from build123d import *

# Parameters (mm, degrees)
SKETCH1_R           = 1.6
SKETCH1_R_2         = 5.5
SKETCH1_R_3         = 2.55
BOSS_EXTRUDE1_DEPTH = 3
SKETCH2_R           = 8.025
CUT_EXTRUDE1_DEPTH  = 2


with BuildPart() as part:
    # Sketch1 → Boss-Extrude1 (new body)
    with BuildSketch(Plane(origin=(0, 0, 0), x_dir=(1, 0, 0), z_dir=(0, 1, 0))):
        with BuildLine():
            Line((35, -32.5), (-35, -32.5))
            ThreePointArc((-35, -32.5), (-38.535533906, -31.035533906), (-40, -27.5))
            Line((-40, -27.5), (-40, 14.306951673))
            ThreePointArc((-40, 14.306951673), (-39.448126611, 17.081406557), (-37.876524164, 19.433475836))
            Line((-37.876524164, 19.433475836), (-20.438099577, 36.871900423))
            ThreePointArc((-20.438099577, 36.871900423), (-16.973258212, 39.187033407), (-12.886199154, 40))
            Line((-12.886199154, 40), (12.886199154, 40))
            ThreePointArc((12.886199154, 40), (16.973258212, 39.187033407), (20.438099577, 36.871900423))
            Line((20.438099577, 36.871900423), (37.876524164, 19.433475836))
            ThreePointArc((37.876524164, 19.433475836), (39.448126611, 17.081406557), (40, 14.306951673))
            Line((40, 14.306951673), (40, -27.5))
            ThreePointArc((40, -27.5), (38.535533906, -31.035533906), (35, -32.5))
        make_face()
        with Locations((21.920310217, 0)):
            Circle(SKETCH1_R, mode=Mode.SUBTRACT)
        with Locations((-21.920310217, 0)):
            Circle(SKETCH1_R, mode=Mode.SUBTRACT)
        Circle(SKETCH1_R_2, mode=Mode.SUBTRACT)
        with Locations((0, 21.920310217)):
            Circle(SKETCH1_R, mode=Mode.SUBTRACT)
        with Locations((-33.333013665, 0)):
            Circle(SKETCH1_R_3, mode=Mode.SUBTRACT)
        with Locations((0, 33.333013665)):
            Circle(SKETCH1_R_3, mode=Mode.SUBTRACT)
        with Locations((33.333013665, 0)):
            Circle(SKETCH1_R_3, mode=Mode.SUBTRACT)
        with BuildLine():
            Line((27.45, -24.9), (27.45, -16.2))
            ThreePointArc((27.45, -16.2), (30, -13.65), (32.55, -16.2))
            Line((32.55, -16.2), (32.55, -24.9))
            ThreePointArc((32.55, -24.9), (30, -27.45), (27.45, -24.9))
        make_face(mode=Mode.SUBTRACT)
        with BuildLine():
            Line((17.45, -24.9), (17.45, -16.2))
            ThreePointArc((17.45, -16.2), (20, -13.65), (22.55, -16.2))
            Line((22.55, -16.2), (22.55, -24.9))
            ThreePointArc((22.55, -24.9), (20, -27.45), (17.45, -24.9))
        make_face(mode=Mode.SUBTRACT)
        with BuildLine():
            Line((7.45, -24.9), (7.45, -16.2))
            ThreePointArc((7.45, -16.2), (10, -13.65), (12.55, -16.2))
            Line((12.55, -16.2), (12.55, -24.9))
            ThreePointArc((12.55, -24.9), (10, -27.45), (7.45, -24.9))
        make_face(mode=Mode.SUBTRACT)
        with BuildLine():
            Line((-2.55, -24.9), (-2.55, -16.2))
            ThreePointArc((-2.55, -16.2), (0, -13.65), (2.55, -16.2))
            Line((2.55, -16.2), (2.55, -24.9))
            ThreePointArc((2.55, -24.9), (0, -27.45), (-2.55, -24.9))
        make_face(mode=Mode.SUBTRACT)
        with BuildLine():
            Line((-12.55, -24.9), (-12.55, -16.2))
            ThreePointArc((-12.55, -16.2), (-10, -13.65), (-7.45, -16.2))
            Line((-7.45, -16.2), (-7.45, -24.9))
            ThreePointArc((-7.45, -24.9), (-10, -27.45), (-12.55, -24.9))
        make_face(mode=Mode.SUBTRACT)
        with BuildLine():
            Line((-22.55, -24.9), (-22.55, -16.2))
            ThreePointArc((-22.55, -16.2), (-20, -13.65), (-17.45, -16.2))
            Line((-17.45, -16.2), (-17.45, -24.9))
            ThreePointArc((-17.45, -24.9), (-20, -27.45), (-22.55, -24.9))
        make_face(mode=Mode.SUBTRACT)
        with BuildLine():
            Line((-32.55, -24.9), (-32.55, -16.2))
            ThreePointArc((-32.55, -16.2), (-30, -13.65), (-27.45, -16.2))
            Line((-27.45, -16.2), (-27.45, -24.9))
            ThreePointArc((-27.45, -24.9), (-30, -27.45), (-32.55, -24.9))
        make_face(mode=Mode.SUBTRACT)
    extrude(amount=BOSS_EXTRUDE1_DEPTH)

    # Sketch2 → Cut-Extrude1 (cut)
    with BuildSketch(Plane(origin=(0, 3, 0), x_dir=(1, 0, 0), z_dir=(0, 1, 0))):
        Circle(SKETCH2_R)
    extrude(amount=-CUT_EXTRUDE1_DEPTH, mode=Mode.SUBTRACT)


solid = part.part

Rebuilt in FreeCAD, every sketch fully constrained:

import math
import FreeCAD as App
import Part
import Sketcher
Q = App.Units.Quantity

doc = App.newDocument("Part")
params = doc.addObject("Spreadsheet::Sheet", "Params")
for row, (alias, value) in enumerate([
    ("sketch1_diameter", "11 mm"),
    ("sketch1_radius", "5 mm"),
    ("sketch1_diameter2", "5.1 mm"),
    ("sketch1_diameter3", "3.2 mm"),
    ("sketch1_width", "70 mm"),
    ("pad1_length", "3 mm"),
    ("sketch2_diameter", "16.05 mm"),
    ("pocket1_length", "2 mm"),
], start=1):
    params.set(f"A{row}", alias)
    params.set(f"B{row}", "=" + value)
    params.setAlias(f"B{row}", alias)

body = doc.addObject("PartDesign::Body", "Body")

# Sketch on XZ plane
sketch1 = body.newObject("Sketcher::SketchObject", "Sketch")
sketch1.AttachmentSupport = (doc.getObject("XZ_Plane"), [""])
sketch1.MapMode = "FlatFace"
sketch1.addGeometry([
    Part.LineSegment(App.Vector(-35, 32.5, 0), App.Vector(35, 32.5, 0)),  # 0
    Part.ArcOfCircle(Part.Circle(App.Vector(35, 27.5, 0), App.Vector(0, 0, 1), 5), math.radians(0), math.radians(90)),  # 1
    Part.LineSegment(App.Vector(40, 27.5, 0), App.Vector(40, -14.3, 0)),  # 2
    Part.ArcOfCircle(Part.Circle(App.Vector(32.8, -14.3, 0), App.Vector(0, 0, 1), 7.2), math.radians(-45), math.radians(0)),  # 3
    Part.LineSegment(App.Vector(37.9, -19.4, 0), App.Vector(20.4, -36.9, 0)),  # 4
    Part.ArcOfCircle(Part.Circle(App.Vector(12.9, -29.3, 0), App.Vector(0, 0, 1), 10.7), math.radians(-90), math.radians(-45)),  # 5
    Part.LineSegment(App.Vector(12.9, -40, 0), App.Vector(-12.9, -40, 0)),  # 6
    Part.ArcOfCircle(Part.Circle(App.Vector(-12.9, -29.3, 0), App.Vector(0, 0, 1), 10.7), math.radians(-135), math.radians(-90)),  # 7
    Part.LineSegment(App.Vector(-20.4, -36.9, 0), App.Vector(-37.9, -19.4, 0)),  # 8
    Part.ArcOfCircle(Part.Circle(App.Vector(-32.8, -14.3, 0), App.Vector(0, 0, 1), 7.2), math.radians(180), math.radians(225)),  # 9
    Part.LineSegment(App.Vector(-40, -14.3, 0), App.Vector(-40, 27.5, 0)),  # 10
    Part.ArcOfCircle(Part.Circle(App.Vector(-35, 27.5, 0), App.Vector(0, 0, 1), 5), math.radians(90), math.radians(180)),  # 11
    Part.LineSegment(App.Vector(27.4, 24.9, 0), App.Vector(27.4, 16.2, 0)),  # 12
    Part.ArcOfCircle(Part.Circle(App.Vector(30, 16.2, 0), App.Vector(0, 0, 1), 2.5), math.radians(180), math.radians(360)),  # 13
    Part.LineSegment(App.Vector(32.5, 16.2, 0), App.Vector(32.5, 24.9, 0)),  # 14
    Part.ArcOfCircle(Part.Circle(App.Vector(30, 24.9, 0), App.Vector(0, 0, 1), 2.5), math.radians(0), math.radians(180)),  # 15
    Part.LineSegment(App.Vector(17.4, 24.9, 0), App.Vector(17.4, 16.2, 0)),  # 16
    Part.ArcOfCircle(Part.Circle(App.Vector(20, 16.2, 0), App.Vector(0, 0, 1), 2.5), math.radians(180), math.radians(360)),  # 17
    Part.LineSegment(App.Vector(22.6, 16.2, 0), App.Vector(22.6, 24.9, 0)),  # 18
    Part.ArcOfCircle(Part.Circle(App.Vector(20, 24.9, 0), App.Vector(0, 0, 1), 2.5), math.radians(0), math.radians(180)),  # 19
    Part.LineSegment(App.Vector(7.5, 24.9, 0), App.Vector(7.5, 16.2, 0)),  # 20
    Part.ArcOfCircle(Part.Circle(App.Vector(10, 16.2, 0), App.Vector(0, 0, 1), 2.5), math.radians(180), math.radians(360)),  # 21
    Part.LineSegment(App.Vector(12.6, 16.2, 0), App.Vector(12.6, 24.9, 0)),  # 22
    Part.ArcOfCircle(Part.Circle(App.Vector(10, 24.9, 0), App.Vector(0, 0, 1), 2.5), math.radians(0), math.radians(180)),  # 23
    Part.LineSegment(App.Vector(-2.5, 24.9, 0), App.Vector(-2.5, 16.2, 0)),  # 24
    Part.ArcOfCircle(Part.Circle(App.Vector(0, 16.2, 0), App.Vector(0, 0, 1), 2.5), math.radians(180), math.radians(360)),  # 25
    Part.LineSegment(App.Vector(2.5, 16.2, 0), App.Vector(2.5, 24.9, 0)),  # 26
    Part.ArcOfCircle(Part.Circle(App.Vector(0, 24.9, 0), App.Vector(0, 0, 1), 2.5), math.radians(0), math.radians(180)),  # 27
    Part.Circle(App.Vector(33.3, 0, 0), App.Vector(0, 0, 1), 2.5),  # 28
    Part.Circle(App.Vector(21.9, 0, 0), App.Vector(0, 0, 1), 1.6),  # 29
    Part.Circle(App.Vector(0, 0, 0), App.Vector(0, 0, 1), 5.5),  # 30
    Part.LineSegment(App.Vector(-12.6, 24.9, 0), App.Vector(-12.6, 16.2, 0)),  # 31
    Part.ArcOfCircle(Part.Circle(App.Vector(-10, 16.2, 0), App.Vector(0, 0, 1), 2.5), math.radians(180), math.radians(360)),  # 32
    Part.LineSegment(App.Vector(-7.5, 16.2, 0), App.Vector(-7.5, 24.9, 0)),  # 33
    Part.ArcOfCircle(Part.Circle(App.Vector(-10, 24.9, 0), App.Vector(0, 0, 1), 2.5), math.radians(0), math.radians(180)),  # 34
    Part.LineSegment(App.Vector(-22.6, 24.9, 0), App.Vector(-22.6, 16.2, 0)),  # 35
    Part.ArcOfCircle(Part.Circle(App.Vector(-20, 16.2, 0), App.Vector(0, 0, 1), 2.5), math.radians(180), math.radians(360)),  # 36
    Part.LineSegment(App.Vector(-17.4, 16.2, 0), App.Vector(-17.4, 24.9, 0)),  # 37
    Part.ArcOfCircle(Part.Circle(App.Vector(-20, 24.9, 0), App.Vector(0, 0, 1), 2.5), math.radians(0), math.radians(180)),  # 38
    Part.LineSegment(App.Vector(-32.5, 24.9, 0), App.Vector(-32.5, 16.2, 0)),  # 39
    Part.ArcOfCircle(Part.Circle(App.Vector(-30, 16.2, 0), App.Vector(0, 0, 1), 2.5), math.radians(180), math.radians(360)),  # 40
    Part.LineSegment(App.Vector(-27.4, 16.2, 0), App.Vector(-27.4, 24.9, 0)),  # 41
    Part.ArcOfCircle(Part.Circle(App.Vector(-30, 24.9, 0), App.Vector(0, 0, 1), 2.5), math.radians(0), math.radians(180)),  # 42
    Part.Circle(App.Vector(-21.9, 0, 0), App.Vector(0, 0, 1), 1.6),  # 43
    Part.Circle(App.Vector(-33.3, 0, 0), App.Vector(0, 0, 1), 2.5),  # 44
    Part.Circle(App.Vector(0, -21.9, 0), App.Vector(0, 0, 1), 1.6),  # 45
    Part.Circle(App.Vector(0, -33.3, 0), App.Vector(0, 0, 1), 2.5),  # 46
], False)
sketch1.addConstraint([
    Sketcher.Constraint("Tangent", 0, 2, 1, 2),
    Sketcher.Constraint("Tangent", 1, 1, 2, 1),
    Sketcher.Constraint("Tangent", 2, 2, 3, 2),
    Sketcher.Constraint("Tangent", 3, 1, 4, 1),
    Sketcher.Constraint("Tangent", 4, 2, 5, 2),
    Sketcher.Constraint("Tangent", 5, 1, 6, 1),
    Sketcher.Constraint("Tangent", 6, 2, 7, 2),
    Sketcher.Constraint("Tangent", 7, 1, 8, 1),
    Sketcher.Constraint("Tangent", 8, 2, 9, 2),
    Sketcher.Constraint("Tangent", 9, 1, 10, 1),
    Sketcher.Constraint("Tangent", 10, 2, 11, 2),
    Sketcher.Constraint("Tangent", 11, 1, 0, 1),
    Sketcher.Constraint("Tangent", 12, 2, 13, 1),
    Sketcher.Constraint("Tangent", 13, 2, 14, 1),
    Sketcher.Constraint("Tangent", 14, 2, 15, 1),
    Sketcher.Constraint("Tangent", 15, 2, 12, 1),
    Sketcher.Constraint("Tangent", 16, 2, 17, 1),
    Sketcher.Constraint("Tangent", 17, 2, 18, 1),
    Sketcher.Constraint("Tangent", 18, 2, 19, 1),
    Sketcher.Constraint("Tangent", 19, 2, 16, 1),
    Sketcher.Constraint("Tangent", 20, 2, 21, 1),
    Sketcher.Constraint("Tangent", 21, 2, 22, 1),
    Sketcher.Constraint("Tangent", 22, 2, 23, 1),
    Sketcher.Constraint("Tangent", 23, 2, 20, 1),
    Sketcher.Constraint("Tangent", 24, 2, 25, 1),
    Sketcher.Constraint("Tangent", 25, 2, 26, 1),
    Sketcher.Constraint("Tangent", 26, 2, 27, 1),
    Sketcher.Constraint("Tangent", 27, 2, 24, 1),
    Sketcher.Constraint("Tangent", 31, 2, 32, 1),
    Sketcher.Constraint("Tangent", 32, 2, 33, 1),
    Sketcher.Constraint("Tangent", 33, 2, 34, 1),
    Sketcher.Constraint("Tangent", 34, 2, 31, 1),
    Sketcher.Constraint("Tangent", 35, 2, 36, 1),
    Sketcher.Constraint("Tangent", 36, 2, 37, 1),
    Sketcher.Constraint("Tangent", 37, 2, 38, 1),
    Sketcher.Constraint("Tangent", 38, 2, 35, 1),
    Sketcher.Constraint("Tangent", 39, 2, 40, 1),
    Sketcher.Constraint("Tangent", 40, 2, 41, 1),
    Sketcher.Constraint("Tangent", 41, 2, 42, 1),
    Sketcher.Constraint("Tangent", 42, 2, 39, 1),
    Sketcher.Constraint("Horizontal", 0),
    Sketcher.Constraint("Vertical", 2),
    Sketcher.Constraint("Horizontal", 6),
    Sketcher.Constraint("Vertical", 10),
    Sketcher.Constraint("Vertical", 12),
    Sketcher.Constraint("Vertical", 14),
    Sketcher.Constraint("Vertical", 16),
    Sketcher.Constraint("Vertical", 18),
    Sketcher.Constraint("Vertical", 20),
    Sketcher.Constraint("Vertical", 22),
    Sketcher.Constraint("Vertical", 24),
    Sketcher.Constraint("Vertical", 26),
    Sketcher.Constraint("Vertical", 31),
    Sketcher.Constraint("Vertical", 33),
    Sketcher.Constraint("Vertical", 35),
    Sketcher.Constraint("Vertical", 37),
    Sketcher.Constraint("Vertical", 39),
    Sketcher.Constraint("Vertical", 41),
    Sketcher.Constraint("Coincident", 30, 3, -1, 1),
    Sketcher.Constraint("Equal", 5, 7),
    Sketcher.Constraint("Equal", 3, 9),
    Sketcher.Constraint("Equal", 1, 11),
    Sketcher.Constraint("Equal", 15, 17),
    Sketcher.Constraint("Equal", 19, 21),
    Sketcher.Constraint("Equal", 23, 25),
    Sketcher.Constraint("Equal", 27, 28),
    Sketcher.Constraint("Equal", 28, 32),
    Sketcher.Constraint("Equal", 34, 36),
    Sketcher.Constraint("Equal", 38, 40),
    Sketcher.Constraint("Equal", 29, 43),
    Sketcher.Constraint("Equal", 42, 44),
    Sketcher.Constraint("Equal", 43, 45),
    Sketcher.Constraint("Equal", 44, 46),
    Sketcher.Constraint("Symmetric", 29, 3, 43, 3, -1, 1),
    Sketcher.Constraint("Symmetric", 28, 3, 44, 3, -1, 1),
    Sketcher.Constraint("Symmetric", 3, 3, 9, 3, -2),
    Sketcher.Constraint("Symmetric", 21, 3, 32, 3, -2),
    Sketcher.Constraint("Symmetric", 17, 3, 36, 3, -2),
    Sketcher.Constraint("Symmetric", 13, 3, 40, 3, -2),
    Sketcher.Constraint("PointOnObject", 25, 3, -2),
    Sketcher.Constraint("PointOnObject", 28, 3, -1),
    Sketcher.Constraint("PointOnObject", 29, 3, -1),
    Sketcher.Constraint("PointOnObject", 45, 3, -2),
    Sketcher.Constraint("PointOnObject", 46, 3, -2),
    Sketcher.Constraint("Perpendicular", 4, 8),
    Sketcher.Constraint("Horizontal", 13, 3, 17, 3),
    Sketcher.Constraint("Horizontal", 15, 3, 19, 3),
    Sketcher.Constraint("Horizontal", 17, 3, 21, 3),
    Sketcher.Constraint("Horizontal", 19, 3, 23, 3),
    Sketcher.Constraint("Horizontal", 21, 3, 25, 3),
    Sketcher.Constraint("Horizontal", 23, 3, 27, 3),
    Sketcher.Constraint("Horizontal", 27, 3, 34, 3),
    Sketcher.Constraint("Horizontal", 34, 3, 38, 3),
    Sketcher.Constraint("Horizontal", 38, 3, 42, 3),
    Sketcher.Constraint("Horizontal", 4, 2, 7, 1),
    Sketcher.Constraint("Diameter", 30, Q("11 mm")),
    Sketcher.Constraint("Radius", 1, Q("5 mm")),
    Sketcher.Constraint("Diameter", 28, Q("5.1 mm")),
    Sketcher.Constraint("Diameter", 29, Q("3.2 mm")),
    Sketcher.Constraint("DistanceX", 0, 1, 0, 2, Q("70 mm")),
    Sketcher.Constraint("Radius", 3, Q("7.25 mm")),
    Sketcher.Constraint("Radius", 5, Q("10.68 mm")),
    Sketcher.Constraint("DistanceY", 12, 2, 12, 1, Q("8.7 mm")),
    Sketcher.Constraint("DistanceX", -1, 1, 13, 3, Q("30 mm")),
    Sketcher.Constraint("DistanceX", -1, 1, 17, 3, Q("20 mm")),
    Sketcher.Constraint("DistanceX", -1, 1, 21, 3, Q("10 mm")),
    Sketcher.Constraint("DistanceY", 5, 1, -1, 1, Q("40 mm")),
    Sketcher.Constraint("DistanceY", -1, 1, 1, 3, Q("27.5 mm")),
    Sketcher.Constraint("DistanceY", -1, 1, 13, 3, Q("16.2 mm")),
    Sketcher.Constraint("DistanceX", 6, 2, 6, 1, Q("25.772398 mm")),
    Sketcher.Constraint("DistanceX", -1, 1, 29, 3, Q("21.92031 mm")),
    Sketcher.Constraint("DistanceY", 45, 3, -1, 1, Q("21.92031 mm")),
    Sketcher.Constraint("DistanceX", -1, 1, 28, 3, Q("33.333014 mm")),
    Sketcher.Constraint("DistanceY", 46, 3, -1, 1, Q("33.333014 mm")),
])
sketch1.setExpression("Constraints[95]", "Params.sketch1_diameter")
sketch1.setExpression("Constraints[96]", "Params.sketch1_radius")
sketch1.setExpression("Constraints[97]", "Params.sketch1_diameter2")
sketch1.setExpression("Constraints[98]", "Params.sketch1_diameter3")
sketch1.setExpression("Constraints[99]", "Params.sketch1_width")
pad1 = body.newObject("PartDesign::Pad", "Pad")
pad1.Profile = sketch1
pad1.setExpression("Length", "Params.pad1_length")
pad1.Reversed = True

# Sketch on XZ plane
sketch2 = body.newObject("Sketcher::SketchObject", "Sketch001")
sketch2.AttachmentSupport = (doc.getObject("XZ_Plane"), [""])
sketch2.MapMode = "FlatFace"
sketch2.AttachmentOffset = App.Placement(App.Vector(0, 0, -3), App.Rotation())
sketch2.addGeometry(Part.Circle(App.Vector(0, 0, 0), App.Vector(0, 0, 1), 8), False)
sketch2.addConstraint([
    Sketcher.Constraint("Coincident", 0, 3, -1, 1),
    Sketcher.Constraint("Diameter", 0, Q("16.05 mm")),
])
sketch2.setExpression("Constraints[1]", "Params.sketch2_diameter")
pocket1 = body.newObject("PartDesign::Pocket", "Pocket")
pocket1.Profile = sketch2
pocket1.setExpression("Length", "Params.pocket1_length")
pocket1.Reversed = True

doc.recompute()
